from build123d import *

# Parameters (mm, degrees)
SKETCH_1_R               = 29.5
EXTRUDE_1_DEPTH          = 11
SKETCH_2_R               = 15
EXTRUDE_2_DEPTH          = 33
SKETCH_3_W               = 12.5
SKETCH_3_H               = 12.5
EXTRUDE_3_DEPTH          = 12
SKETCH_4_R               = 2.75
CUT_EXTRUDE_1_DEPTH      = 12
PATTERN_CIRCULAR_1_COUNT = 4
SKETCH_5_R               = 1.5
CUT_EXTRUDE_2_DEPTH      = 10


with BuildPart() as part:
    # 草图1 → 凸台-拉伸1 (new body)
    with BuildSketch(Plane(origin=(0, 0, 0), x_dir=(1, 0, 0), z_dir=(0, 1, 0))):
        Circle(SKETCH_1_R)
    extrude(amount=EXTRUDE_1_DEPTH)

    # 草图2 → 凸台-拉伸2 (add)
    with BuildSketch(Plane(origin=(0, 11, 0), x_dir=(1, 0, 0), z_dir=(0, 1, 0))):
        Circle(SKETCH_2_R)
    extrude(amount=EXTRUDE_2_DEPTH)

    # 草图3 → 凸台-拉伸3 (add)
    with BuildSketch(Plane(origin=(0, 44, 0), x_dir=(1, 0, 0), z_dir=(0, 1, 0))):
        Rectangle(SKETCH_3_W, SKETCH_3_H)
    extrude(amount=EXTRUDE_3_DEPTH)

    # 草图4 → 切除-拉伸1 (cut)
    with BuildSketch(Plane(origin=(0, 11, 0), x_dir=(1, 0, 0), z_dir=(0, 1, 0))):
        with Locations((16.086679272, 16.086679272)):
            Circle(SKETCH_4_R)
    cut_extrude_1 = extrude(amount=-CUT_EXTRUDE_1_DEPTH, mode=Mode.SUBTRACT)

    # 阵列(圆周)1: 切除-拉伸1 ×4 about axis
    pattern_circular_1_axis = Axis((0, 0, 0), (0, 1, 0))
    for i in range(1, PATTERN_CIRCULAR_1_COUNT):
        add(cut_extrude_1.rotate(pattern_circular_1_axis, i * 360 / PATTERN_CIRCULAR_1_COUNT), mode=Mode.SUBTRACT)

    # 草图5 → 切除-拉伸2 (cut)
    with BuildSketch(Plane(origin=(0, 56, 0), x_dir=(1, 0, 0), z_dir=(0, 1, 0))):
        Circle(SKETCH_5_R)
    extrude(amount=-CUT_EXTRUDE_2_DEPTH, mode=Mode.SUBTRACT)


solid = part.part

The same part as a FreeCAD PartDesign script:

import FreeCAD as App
import Part
import Sketcher

V = App.Vector
Q = App.Units.Quantity

doc = App.newDocument("Part")
body = doc.addObject("PartDesign::Body", "Body")

# Sketch on XZ plane
sketch1 = doc.addObject("Sketcher::SketchObject", "Sketch")
body.addObject(sketch1)
sketch1.AttachmentSupport = (doc.XZ_Plane, [""])
sketch1.MapMode = "FlatFace"
sketch1.addGeometry(Part.Circle(V(0, 0, 0), V(0, 0, 1), 30), False)
sketch1.addConstraint([
    Sketcher.Constraint("Coincident", 0, 3, -1, 1),
    Sketcher.Constraint("Diameter", 0, Q("59 mm")),
])
pad1 = doc.addObject("PartDesign::Pad", "Pad")
body.addObject(pad1)
pad1.Profile = sketch1
pad1.Length = 11
pad1.Reversed = True

# Sketch on XZ plane
sketch2 = doc.addObject("Sketcher::SketchObject", "Sketch001")
body.addObject(sketch2)
sketch2.AttachmentSupport = (doc.XZ_Plane, [""])
sketch2.MapMode = "FlatFace"
sketch2.AttachmentOffset = App.Placement(V(0, 0, -11), App.Rotation())
sketch2.addGeometry(Part.Circle(V(0, 0, 0), V(0, 0, 1), 15), False)
sketch2.addConstraint([
    Sketcher.Constraint("Coincident", 0, 3, -1, 1),
    Sketcher.Constraint("Diameter", 0, Q("30 mm")),
])
pad2 = doc.addObject("PartDesign::Pad", "Pad001")
body.addObject(pad2)
pad2.Profile = sketch2
pad2.Length = 33
pad2.Reversed = True

# Sketch on XZ plane
sketch3 = doc.addObject("Sketcher::SketchObject", "Sketch002")
body.addObject(sketch3)
sketch3.AttachmentSupport = (doc.XZ_Plane, [""])
sketch3.MapMode = "FlatFace"
sketch3.AttachmentOffset = App.Placement(V(0, 0, -44), App.Rotation())
sketch3.addGeometry([
    Part.LineSegment(V(-6, -6, 0), V(-6, 6, 0)),
    Part.LineSegment(V(-6, 6, 0), V(6, 6, 0)),
    Part.LineSegment(V(6, 6, 0), V(6, -6, 0)),
    Part.LineSegment(V(6, -6, 0), V(-6, -6, 0)),
], False)
sketch3.addConstraint([
    Sketcher.Constraint("Coincident", 0, 2, 1, 1),
    Sketcher.Constraint("Coincident", 1, 2, 2, 1),
    Sketcher.Constraint("Coincident", 2, 2, 3, 1),
    Sketcher.Constraint("Coincident", 3, 2, 0, 1),
    Sketcher.Constraint("Vertical", 0),
    Sketcher.Constraint("Horizontal", 1),
    Sketcher.Constraint("Vertical", 2),
    Sketcher.Constraint("Horizontal", 3),
    Sketcher.Constraint("Symmetric", 0, 2, 2, 2, -1, 1),
    Sketcher.Constraint("Equal", 3, 0),
    Sketcher.Constraint("DistanceX", 1, 1, 1, 2, Q("12.5 mm")),
])
pad3 = doc.addObject("PartDesign::Pad", "Pad002")
body.addObject(pad3)
pad3.Profile = sketch3
pad3.Length = 12
pad3.Reversed = True

# Sketch on XZ plane
sketch4 = doc.addObject("Sketcher::SketchObject", "Sketch003")
body.addObject(sketch4)
sketch4.AttachmentSupport = (doc.XZ_Plane, [""])
sketch4.MapMode = "FlatFace"
sketch4.AttachmentOffset = App.Placement(V(0, 0, -11), App.Rotation())
sketch4.addGeometry(Part.Circle(V(16.1, -16.1, 0), V(0, 0, 1), 2.8), False)
sketch4.addConstraint([
    Sketcher.Constraint("Diameter", 0, Q("5.5 mm")),
    Sketcher.Constraint("DistanceX", -1, 1, 0, 3, Q("16.086679 mm")),
    Sketcher.Constraint("DistanceY", 0, 3, -1, 1, Q("16.086679 mm")),
])
pocket1 = doc.addObject("PartDesign::Pocket", "Pocket")
body.addObject(pocket1)
pocket1.Profile = sketch4
pocket1.Length = 12
pocket1.Reversed = True
doc.recompute()

polarpattern = doc.addObject("PartDesign::PolarPattern", "PolarPattern")
body.addObject(polarpattern)
polarpattern.Originals = [pocket1]
polarpattern.Axis = (doc.Y_Axis, [""])
polarpattern.Angle = 360
polarpattern.Occurrences = 4
body.Tip = polarpattern

# Sketch on XZ plane
sketch5 = doc.addObject("Sketcher::SketchObject", "Sketch004")
body.addObject(sketch5)
sketch5.AttachmentSupport = (doc.XZ_Plane, [""])
sketch5.MapMode = "FlatFace"
sketch5.AttachmentOffset = App.Placement(V(0, 0, -56), App.Rotation())
sketch5.addGeometry(Part.Circle(V(0, 0, 0), V(0, 0, 1), 1.5), False)
sketch5.addConstraint([
    Sketcher.Constraint("Coincident", 0, 3, -1, 1),
    Sketcher.Constraint("Diameter", 0, Q("3 mm")),
])
pocket2 = doc.addObject("PartDesign::Pocket", "Pocket001")
body.addObject(pocket2)
pocket2.Profile = sketch5
pocket2.Length = 10
pocket2.Reversed = True

doc.recompute()
